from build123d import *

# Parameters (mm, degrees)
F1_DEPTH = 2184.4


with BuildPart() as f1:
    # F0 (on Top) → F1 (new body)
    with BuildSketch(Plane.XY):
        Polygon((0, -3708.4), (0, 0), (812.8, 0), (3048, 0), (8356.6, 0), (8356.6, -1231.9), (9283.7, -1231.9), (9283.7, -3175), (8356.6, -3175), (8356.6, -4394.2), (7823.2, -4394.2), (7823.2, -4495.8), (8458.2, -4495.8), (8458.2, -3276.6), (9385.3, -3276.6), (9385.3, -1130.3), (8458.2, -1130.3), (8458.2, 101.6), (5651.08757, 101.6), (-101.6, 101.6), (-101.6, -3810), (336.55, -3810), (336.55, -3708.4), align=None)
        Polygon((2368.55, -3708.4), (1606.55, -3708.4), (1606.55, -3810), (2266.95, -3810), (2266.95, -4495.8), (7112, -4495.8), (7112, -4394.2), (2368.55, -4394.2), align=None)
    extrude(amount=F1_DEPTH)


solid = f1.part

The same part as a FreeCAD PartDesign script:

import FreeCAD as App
import Part
import Sketcher
from FreeCAD import Vector
Q = App.Units.Quantity


def add_polygon(sketch, points):
    """Adds a closed chain of lines whose ends are joined by coincident constraints."""
    first, n = sketch.GeometryCount, len(points)
    for a, b in zip(points, points[1:] + points[:1]):
        sketch.addGeometry(Part.LineSegment(App.Vector(*a, 0), App.Vector(*b, 0)), False)
    for i in range(n):
        sketch.addConstraint(Sketcher.Constraint("Coincident", first + i, 2, first + (i + 1) % n, 1))

doc = App.newDocument("Part")
body = doc.addObject("PartDesign::Body", "Body")
body.AllowCompound = True

# Sketch on XY plane
sketch1 = body.newObject("Sketcher::SketchObject", "Sketch")
sketch1.AttachmentSupport = (doc.getObject("XY_Plane"), [""])
sketch1.MapMode = "FlatFace"
add_polygon(sketch1, [(0, -3708), (0, 0), (8357, 0), (8357, -1232), (9284, -1232), (9284, -3175), (8357, -3175), (8357, -4394), (7823, -4394), (7823, -4496), (8458, -4496), (8458, -3277), (9385, -3277), (9385, -1130), (8458, -1130), (8458, 102), (-102, 102), (-102, -3810), (337, -3810), (337, -3708)])  # lines 0-19
add_polygon(sketch1, [(2369, -3708), (1607, -3708), (1607, -3810), (2267, -3810), (2267, -4496), (7112, -4496), (7112, -4394), (2369, -4394)])  # lines 20-27
sketch1.addConstraint([
    Sketcher.Constraint("Vertical", 0),
    Sketcher.Constraint("Horizontal", 1),
    Sketcher.Constraint("Vertical", 2),
    Sketcher.Constraint("Horizontal", 3),
    Sketcher.Constraint("Vertical", 4),
    Sketcher.Constraint("Horizontal", 5),
    Sketcher.Constraint("Vertical", 6),
    Sketcher.Constraint("Horizontal", 7),
    Sketcher.Constraint("Vertical", 8),
    Sketcher.Constraint("Horizontal", 9),
    Sketcher.Constraint("Vertical", 10),
    Sketcher.Constraint("Horizontal", 11),
    Sketcher.Constraint("Vertical", 12),
    Sketcher.Constraint("Horizontal", 13),
    Sketcher.Constraint("Vertical", 14),
    Sketcher.Constraint("Horizontal", 15),
    Sketcher.Constraint("Vertical", 16),
    Sketcher.Constraint("Horizontal", 17),
    Sketcher.Constraint("Vertical", 18),
    Sketcher.Constraint("Horizontal", 19),
    Sketcher.Constraint("Horizontal", 20),
    Sketcher.Constraint("Vertical", 21),
    Sketcher.Constraint("Horizontal", 22),
    Sketcher.Constraint("Vertical", 23),
    Sketcher.Constraint("Horizontal", 24),
    Sketcher.Constraint("Vertical", 25),
    Sketcher.Constraint("Horizontal", 26),
    Sketcher.Constraint("Vertical", 27),
    Sketcher.Constraint("Coincident", 0, 2, -1, 1),
    Sketcher.Constraint("Horizontal", 19, 2, 20, 2),
    Sketcher.Constraint("Horizontal", 17, 2, 21, 2),
    Sketcher.Constraint("Horizontal", 9, 2, 23, 2),
    Sketcher.Constraint("Horizontal", 7, 2, 25, 2),
    Sketcher.Constraint("Vertical", 2, 2, 5, 2),
    Sketcher.Constraint("Vertical", 10, 2, 13, 2),
    Sketcher.Constraint("Equal", 5, 11),
    Sketcher.Constraint("Equal", 6, 10),
    Sketcher.Constraint("Equal", 2, 14),
    Sketcher.Constraint("Equal", 8, 18),
    Sketcher.Constraint("DistanceX", 1, 1, 1, 2, Q("329 in")),
    Sketcher.Constraint("DistanceX", 7, 2, 7, 1, Q("21 in")),
    Sketcher.Constraint("DistanceX", 9, 1, 9, 2, Q("25 in")),
    Sketcher.Constraint("DistanceX", 15, 2, 15, 1, Q("337 in")),
    Sketcher.Constraint("DistanceX", 20, 2, 20, 1, Q("30 in")),
    Sketcher.Constraint("DistanceX", 22, 1, 22, 2, Q("26 in")),
    Sketcher.Constraint("DistanceY", 0, 1, 0, 2, Q("146 in")),
    Sketcher.Constraint("DistanceY", 6, 2, 6, 1, Q("48 in")),
    Sketcher.Constraint("DistanceY", 8, 2, 8, 1, Q("4 in")),
    Sketcher.Constraint("DistanceY", 16, 2, 16, 1, Q("154 in")),
    Sketcher.Constraint("DistanceY", 23, 2, 23, 1, Q("27 in")),
    Sketcher.Constraint("DistanceX", 3, 1, 3, 2, Q("36.5 in")),
    Sketcher.Constraint("DistanceY", 2, 2, 2, 1, Q("48.5 in")),
    Sketcher.Constraint("DistanceX", -1, 1, 24, 2, Q("280 in")),
    Sketcher.Constraint("DistanceX", 18, 2, 20, 2, Q("50 in")),
    Sketcher.Constraint("DistanceX", 17, 1, 17, 2, Q("17.25 in")),
])
pad1 = body.newObject("PartDesign::Pad", "Pad")
pad1.Profile = sketch1
pad1.Length = Q("86 in")

doc.recompute()
